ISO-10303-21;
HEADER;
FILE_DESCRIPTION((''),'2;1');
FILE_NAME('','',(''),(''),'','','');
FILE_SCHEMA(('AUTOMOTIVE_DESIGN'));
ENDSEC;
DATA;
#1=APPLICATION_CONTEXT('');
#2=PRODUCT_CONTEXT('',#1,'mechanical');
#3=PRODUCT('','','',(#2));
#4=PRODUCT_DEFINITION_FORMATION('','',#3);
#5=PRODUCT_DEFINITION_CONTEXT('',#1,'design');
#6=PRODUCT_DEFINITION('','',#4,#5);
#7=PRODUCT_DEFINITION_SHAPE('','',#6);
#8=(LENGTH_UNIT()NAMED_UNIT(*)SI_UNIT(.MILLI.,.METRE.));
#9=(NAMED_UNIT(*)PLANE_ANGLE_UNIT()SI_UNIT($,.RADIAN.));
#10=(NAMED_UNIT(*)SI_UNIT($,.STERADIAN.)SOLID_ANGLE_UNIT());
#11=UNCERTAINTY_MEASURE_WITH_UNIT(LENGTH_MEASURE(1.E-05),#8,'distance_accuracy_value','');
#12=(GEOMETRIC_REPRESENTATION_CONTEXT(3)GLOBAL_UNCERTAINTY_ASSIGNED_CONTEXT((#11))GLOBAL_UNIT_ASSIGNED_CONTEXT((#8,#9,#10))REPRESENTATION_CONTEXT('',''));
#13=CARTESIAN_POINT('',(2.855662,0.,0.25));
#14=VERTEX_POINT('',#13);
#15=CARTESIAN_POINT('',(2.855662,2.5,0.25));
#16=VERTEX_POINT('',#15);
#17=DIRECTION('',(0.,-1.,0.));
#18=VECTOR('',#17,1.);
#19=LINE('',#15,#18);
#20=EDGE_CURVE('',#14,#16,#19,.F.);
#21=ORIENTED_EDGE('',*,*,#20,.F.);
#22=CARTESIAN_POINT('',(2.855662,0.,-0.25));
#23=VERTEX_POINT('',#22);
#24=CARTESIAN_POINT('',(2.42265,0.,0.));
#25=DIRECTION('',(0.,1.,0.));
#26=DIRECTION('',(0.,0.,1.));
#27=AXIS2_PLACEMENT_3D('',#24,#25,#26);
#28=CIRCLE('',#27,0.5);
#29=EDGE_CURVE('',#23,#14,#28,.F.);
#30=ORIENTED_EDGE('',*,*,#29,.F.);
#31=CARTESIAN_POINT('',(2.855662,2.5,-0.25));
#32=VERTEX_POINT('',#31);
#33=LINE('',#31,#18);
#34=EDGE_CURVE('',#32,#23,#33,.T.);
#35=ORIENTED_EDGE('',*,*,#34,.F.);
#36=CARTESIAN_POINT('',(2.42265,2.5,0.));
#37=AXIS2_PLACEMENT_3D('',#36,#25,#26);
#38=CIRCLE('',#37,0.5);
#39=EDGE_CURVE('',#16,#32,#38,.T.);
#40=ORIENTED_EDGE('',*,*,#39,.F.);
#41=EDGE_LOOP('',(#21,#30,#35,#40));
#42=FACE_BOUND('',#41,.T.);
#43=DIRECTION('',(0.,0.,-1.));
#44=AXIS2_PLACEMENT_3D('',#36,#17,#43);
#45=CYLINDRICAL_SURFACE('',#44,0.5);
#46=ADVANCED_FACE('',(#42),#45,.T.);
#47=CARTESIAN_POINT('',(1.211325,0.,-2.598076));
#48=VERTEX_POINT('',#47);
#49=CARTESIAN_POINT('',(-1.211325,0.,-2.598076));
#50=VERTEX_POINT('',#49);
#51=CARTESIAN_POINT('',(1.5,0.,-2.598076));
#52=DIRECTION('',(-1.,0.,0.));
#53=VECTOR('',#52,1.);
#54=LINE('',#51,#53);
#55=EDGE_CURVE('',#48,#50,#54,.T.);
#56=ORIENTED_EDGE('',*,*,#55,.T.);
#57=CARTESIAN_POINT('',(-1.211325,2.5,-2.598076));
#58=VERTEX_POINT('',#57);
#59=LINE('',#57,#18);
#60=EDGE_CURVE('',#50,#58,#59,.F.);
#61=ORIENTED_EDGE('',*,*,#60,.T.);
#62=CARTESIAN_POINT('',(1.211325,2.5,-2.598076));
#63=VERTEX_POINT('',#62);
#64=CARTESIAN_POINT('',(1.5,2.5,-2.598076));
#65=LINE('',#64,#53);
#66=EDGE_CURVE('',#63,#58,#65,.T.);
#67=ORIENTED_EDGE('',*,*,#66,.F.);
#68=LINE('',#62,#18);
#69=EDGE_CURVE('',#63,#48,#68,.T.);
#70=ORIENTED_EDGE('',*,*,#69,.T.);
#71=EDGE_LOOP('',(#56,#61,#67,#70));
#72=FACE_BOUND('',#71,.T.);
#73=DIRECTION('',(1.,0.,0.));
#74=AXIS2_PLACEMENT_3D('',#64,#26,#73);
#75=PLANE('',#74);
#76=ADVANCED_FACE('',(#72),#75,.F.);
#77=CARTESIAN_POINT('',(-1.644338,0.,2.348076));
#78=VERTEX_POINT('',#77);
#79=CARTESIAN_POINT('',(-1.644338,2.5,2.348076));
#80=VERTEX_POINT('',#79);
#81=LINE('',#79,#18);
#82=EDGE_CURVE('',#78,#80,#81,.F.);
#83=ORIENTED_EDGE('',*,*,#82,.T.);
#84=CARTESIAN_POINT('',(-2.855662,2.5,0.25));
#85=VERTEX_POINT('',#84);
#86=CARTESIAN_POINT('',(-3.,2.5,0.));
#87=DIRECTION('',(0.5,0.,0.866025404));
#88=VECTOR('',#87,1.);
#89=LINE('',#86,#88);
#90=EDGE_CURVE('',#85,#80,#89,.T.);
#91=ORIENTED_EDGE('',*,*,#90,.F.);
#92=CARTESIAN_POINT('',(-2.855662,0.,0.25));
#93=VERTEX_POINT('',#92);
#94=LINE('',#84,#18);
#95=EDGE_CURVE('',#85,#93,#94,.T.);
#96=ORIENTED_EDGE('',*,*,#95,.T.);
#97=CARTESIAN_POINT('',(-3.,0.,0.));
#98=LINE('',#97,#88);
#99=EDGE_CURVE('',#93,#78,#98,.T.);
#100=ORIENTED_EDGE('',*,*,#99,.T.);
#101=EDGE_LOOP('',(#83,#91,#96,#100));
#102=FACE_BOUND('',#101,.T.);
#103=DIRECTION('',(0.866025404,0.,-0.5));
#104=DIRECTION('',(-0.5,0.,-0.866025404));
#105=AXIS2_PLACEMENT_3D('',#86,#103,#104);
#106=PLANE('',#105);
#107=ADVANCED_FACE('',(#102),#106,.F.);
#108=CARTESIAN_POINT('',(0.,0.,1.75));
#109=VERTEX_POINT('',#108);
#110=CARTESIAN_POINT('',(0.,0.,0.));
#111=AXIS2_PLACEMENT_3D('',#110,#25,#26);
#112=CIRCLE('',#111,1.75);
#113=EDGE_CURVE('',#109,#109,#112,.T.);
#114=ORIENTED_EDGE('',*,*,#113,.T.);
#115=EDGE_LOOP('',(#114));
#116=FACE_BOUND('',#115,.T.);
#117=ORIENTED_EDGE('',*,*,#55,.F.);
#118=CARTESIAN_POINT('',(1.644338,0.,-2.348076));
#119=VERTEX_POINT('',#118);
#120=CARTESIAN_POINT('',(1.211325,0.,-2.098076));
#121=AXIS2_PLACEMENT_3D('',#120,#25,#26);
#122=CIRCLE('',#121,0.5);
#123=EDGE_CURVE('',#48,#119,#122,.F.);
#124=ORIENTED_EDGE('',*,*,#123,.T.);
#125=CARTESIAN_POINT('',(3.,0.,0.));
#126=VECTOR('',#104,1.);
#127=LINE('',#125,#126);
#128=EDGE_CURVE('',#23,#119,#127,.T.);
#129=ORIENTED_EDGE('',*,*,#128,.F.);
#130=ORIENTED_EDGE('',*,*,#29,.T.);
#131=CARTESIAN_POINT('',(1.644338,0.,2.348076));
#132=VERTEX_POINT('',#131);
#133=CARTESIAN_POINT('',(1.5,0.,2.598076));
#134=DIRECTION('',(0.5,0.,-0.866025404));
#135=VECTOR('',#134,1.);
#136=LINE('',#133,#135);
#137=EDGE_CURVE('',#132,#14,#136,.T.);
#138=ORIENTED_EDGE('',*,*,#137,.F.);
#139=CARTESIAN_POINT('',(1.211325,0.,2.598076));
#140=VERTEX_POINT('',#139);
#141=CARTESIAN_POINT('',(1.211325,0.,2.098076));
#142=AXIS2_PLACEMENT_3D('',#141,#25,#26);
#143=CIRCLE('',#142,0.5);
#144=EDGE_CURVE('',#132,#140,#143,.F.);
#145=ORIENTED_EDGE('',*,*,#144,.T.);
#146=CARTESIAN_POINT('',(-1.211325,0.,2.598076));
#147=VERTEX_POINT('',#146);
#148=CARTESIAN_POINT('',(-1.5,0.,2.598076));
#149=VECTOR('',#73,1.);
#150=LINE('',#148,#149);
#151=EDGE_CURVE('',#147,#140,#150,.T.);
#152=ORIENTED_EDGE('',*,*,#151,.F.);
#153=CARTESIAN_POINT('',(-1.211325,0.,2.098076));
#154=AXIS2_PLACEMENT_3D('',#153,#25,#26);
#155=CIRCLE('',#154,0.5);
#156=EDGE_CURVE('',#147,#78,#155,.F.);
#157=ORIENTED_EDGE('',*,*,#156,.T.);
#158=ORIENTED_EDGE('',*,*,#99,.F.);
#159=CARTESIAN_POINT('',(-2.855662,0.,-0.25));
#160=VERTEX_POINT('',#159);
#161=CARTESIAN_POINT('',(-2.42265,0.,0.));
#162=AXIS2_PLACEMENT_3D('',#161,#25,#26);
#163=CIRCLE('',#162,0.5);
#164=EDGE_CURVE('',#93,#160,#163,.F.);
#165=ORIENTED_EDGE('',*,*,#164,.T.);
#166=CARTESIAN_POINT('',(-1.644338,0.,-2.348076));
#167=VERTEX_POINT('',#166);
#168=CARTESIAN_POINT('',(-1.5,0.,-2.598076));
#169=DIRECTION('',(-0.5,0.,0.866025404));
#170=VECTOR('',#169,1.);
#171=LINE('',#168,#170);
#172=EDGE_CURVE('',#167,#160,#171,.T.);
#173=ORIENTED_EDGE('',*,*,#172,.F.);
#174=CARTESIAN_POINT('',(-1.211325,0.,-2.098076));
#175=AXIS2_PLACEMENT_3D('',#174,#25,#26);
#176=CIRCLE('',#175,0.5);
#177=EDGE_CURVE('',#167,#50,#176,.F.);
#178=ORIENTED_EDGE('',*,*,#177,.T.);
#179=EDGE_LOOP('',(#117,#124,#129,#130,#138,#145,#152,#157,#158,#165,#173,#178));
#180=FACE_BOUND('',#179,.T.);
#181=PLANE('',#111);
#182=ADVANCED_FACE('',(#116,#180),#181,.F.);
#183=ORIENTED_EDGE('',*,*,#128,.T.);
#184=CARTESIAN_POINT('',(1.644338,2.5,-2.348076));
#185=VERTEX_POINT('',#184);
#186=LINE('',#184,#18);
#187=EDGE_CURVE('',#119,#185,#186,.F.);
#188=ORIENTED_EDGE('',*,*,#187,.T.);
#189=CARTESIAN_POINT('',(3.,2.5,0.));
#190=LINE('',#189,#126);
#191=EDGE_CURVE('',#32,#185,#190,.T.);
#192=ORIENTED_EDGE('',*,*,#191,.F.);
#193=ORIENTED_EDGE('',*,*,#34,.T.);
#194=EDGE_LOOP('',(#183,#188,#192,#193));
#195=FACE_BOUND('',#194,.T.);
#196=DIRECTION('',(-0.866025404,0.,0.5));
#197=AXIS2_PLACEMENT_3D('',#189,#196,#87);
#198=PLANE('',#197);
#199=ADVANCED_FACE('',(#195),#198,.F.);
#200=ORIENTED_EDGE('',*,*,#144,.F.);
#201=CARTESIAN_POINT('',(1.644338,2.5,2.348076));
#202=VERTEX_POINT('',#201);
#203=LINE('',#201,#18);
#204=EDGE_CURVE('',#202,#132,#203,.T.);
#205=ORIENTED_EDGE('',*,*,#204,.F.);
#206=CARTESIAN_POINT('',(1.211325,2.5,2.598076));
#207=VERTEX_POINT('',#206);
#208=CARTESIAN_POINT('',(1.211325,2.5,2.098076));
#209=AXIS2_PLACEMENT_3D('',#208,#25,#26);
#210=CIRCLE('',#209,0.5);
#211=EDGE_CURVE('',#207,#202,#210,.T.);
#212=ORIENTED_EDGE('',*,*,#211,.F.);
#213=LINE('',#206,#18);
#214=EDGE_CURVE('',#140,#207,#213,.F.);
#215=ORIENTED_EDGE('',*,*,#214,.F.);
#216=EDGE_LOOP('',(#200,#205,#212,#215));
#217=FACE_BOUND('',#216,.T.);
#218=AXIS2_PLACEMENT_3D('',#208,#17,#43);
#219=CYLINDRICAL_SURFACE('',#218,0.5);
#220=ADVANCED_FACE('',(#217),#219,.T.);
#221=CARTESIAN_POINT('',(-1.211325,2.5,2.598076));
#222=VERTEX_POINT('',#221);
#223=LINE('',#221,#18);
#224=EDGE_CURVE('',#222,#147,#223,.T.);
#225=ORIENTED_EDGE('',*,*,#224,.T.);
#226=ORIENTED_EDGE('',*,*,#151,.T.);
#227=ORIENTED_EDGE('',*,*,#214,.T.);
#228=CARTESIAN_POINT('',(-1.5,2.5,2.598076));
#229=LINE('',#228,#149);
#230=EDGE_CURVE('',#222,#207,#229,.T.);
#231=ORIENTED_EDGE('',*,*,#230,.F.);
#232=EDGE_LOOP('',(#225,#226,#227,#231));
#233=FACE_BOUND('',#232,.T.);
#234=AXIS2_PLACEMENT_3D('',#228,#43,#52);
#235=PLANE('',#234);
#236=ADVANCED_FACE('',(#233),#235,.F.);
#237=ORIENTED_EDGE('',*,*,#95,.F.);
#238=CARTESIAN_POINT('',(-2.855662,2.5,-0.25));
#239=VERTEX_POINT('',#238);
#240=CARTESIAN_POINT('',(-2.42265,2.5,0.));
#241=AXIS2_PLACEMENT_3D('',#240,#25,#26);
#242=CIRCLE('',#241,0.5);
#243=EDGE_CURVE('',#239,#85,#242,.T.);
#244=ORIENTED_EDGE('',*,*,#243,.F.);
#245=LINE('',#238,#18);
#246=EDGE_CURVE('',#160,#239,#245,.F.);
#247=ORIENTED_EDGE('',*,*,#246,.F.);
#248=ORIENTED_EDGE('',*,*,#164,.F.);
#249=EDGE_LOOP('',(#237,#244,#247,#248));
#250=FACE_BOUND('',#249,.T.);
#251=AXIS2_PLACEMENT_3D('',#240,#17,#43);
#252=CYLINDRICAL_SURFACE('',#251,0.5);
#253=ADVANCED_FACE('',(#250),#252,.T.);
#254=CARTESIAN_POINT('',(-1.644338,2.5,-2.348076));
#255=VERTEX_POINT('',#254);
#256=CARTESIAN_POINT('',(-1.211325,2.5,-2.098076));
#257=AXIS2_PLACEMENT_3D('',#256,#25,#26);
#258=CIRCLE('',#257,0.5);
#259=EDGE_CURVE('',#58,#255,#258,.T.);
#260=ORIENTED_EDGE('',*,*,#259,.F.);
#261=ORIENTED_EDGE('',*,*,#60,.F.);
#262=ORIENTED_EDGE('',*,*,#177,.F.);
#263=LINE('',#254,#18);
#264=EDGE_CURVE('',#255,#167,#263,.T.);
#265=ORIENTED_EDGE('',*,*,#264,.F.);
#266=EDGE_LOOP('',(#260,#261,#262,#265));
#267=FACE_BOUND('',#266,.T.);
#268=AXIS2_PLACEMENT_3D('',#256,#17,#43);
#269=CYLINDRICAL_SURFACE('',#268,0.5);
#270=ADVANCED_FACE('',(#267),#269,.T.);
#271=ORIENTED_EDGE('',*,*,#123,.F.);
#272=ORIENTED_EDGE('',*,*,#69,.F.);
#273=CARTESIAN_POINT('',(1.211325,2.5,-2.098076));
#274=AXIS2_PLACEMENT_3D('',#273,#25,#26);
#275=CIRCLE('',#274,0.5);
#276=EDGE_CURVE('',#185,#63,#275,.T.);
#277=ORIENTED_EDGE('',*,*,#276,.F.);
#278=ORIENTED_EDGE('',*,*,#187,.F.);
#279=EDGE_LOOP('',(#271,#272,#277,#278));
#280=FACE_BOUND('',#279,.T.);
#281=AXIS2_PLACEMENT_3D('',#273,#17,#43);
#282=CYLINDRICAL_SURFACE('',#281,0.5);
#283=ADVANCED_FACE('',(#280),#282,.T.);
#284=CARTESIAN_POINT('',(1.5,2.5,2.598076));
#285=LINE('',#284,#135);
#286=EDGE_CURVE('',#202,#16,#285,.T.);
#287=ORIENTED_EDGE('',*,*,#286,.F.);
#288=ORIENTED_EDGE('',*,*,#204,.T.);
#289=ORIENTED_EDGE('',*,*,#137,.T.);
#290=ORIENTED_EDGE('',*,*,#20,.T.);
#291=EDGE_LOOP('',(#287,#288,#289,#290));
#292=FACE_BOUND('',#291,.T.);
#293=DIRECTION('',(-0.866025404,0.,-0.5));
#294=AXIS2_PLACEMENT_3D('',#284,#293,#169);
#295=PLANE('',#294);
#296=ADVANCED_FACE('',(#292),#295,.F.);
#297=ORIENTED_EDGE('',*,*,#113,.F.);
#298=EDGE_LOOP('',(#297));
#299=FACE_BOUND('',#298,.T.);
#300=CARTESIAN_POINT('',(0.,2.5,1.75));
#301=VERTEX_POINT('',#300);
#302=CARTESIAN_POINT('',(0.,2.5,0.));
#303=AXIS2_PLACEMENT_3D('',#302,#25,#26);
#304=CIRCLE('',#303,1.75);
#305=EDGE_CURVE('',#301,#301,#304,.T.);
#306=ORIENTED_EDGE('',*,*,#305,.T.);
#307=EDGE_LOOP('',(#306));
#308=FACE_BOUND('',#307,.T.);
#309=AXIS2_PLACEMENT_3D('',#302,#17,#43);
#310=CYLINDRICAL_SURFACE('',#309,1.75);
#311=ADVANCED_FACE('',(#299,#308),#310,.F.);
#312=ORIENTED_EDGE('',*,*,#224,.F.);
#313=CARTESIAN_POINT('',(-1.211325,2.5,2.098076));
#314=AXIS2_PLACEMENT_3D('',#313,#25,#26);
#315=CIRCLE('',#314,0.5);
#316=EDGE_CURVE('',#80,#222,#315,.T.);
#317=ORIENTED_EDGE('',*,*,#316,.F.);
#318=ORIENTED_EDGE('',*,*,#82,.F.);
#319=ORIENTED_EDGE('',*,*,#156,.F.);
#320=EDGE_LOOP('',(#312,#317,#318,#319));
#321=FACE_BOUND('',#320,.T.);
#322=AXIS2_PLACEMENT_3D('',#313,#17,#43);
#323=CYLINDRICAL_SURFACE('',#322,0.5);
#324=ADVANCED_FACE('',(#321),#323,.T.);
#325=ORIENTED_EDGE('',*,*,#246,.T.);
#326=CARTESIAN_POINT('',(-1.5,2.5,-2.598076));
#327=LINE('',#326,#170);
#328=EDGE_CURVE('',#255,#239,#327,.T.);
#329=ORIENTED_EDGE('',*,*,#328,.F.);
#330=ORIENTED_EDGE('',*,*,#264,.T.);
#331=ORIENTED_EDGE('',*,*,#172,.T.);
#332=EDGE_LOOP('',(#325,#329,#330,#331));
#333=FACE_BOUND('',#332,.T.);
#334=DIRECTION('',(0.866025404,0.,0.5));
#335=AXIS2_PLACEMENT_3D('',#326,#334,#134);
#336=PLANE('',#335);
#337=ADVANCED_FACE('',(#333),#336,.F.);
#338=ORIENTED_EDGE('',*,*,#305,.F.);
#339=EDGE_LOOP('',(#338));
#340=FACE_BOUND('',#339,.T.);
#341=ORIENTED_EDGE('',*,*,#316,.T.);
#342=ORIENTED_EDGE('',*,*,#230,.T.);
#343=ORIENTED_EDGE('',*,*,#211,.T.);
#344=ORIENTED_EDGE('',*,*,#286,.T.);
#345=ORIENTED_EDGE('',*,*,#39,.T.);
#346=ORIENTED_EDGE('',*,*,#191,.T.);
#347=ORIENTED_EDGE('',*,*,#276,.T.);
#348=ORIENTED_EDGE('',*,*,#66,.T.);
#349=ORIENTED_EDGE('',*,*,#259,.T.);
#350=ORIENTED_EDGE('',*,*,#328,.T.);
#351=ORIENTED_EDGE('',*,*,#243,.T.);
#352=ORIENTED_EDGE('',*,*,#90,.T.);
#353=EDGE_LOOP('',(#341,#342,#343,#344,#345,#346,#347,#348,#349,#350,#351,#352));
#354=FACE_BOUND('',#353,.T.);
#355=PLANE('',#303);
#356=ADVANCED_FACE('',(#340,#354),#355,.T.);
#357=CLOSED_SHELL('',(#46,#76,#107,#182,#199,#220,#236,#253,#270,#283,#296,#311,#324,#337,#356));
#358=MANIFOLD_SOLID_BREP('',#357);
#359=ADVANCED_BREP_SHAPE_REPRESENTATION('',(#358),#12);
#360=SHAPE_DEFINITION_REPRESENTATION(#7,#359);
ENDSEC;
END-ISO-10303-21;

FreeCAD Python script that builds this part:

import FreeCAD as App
import Part
import Sketcher
from FreeCAD import Vector
Q = App.Units.Quantity


def edges_at(feature, points):
    """Names of the edges that pass closest to the given points."""
    edges = feature.Shape.Edges
    near = lambda p: min(range(len(edges)), key=lambda i: edges[i].distToShape(Part.Vertex(*p))[0])
    return sorted({f"Edge{near(p) + 1}" for p in points})


def add_polygon(sketch, points):
    """Adds a closed chain of lines whose ends are joined by coincident constraints."""
    first, n = sketch.GeometryCount, len(points)
    for a, b in zip(points, points[1:] + points[:1]):
        sketch.addGeometry(Part.LineSegment(App.Vector(*a, 0), App.Vector(*b, 0)), False)
    for i in range(n):
        sketch.addConstraint(Sketcher.Constraint("Coincident", first + i, 2, first + (i + 1) % n, 1))

doc = App.newDocument("Part")
body = doc.addObject("PartDesign::Body", "Body")

# Sketch on XZ plane
sketch1 = body.newObject("Sketcher::SketchObject", "Sketch")
sketch1.AttachmentSupport = (doc.getObject("XZ_Plane"), [""])
sketch1.MapMode = "FlatFace"
add_polygon(sketch1, [(-1.5, -2.6), (-3, 0), (-1.5, 2.6), (1.5, 2.6), (3, 0), (1.5, -2.6)])  # lines 0-5
sketch1.addGeometry(Part.Circle(Vector(0, 0, 0), Vector(0, 0, 1), 1.8), False)  # 6
sketch1.addConstraint([
    Sketcher.Constraint("Horizontal", 2),
    Sketcher.Constraint("Horizontal", 5),
    Sketcher.Constraint("Coincident", 6, 3, -1, 1),
    Sketcher.Constraint("Symmetric", 0, 2, 3, 2, -1, 1),
    Sketcher.Constraint("Symmetric", 1, 2, 4, 2, -1, 1),
    Sketcher.Constraint("PointOnObject", 0, 2, -1),
    Sketcher.Constraint("Parallel", 0, 3),
    Sketcher.Constraint("Vertical", 2, 2, 4, 2),
    Sketcher.Constraint("Diameter", 6, 3.5),
    Sketcher.Constraint("DistanceX", 2, 1, 2, 2, 3.0),
    Sketcher.Constraint("Angle", 0, Q("120 deg")),
    Sketcher.Constraint("Distance", 0, 3.0),
])
pad1 = body.newObject("PartDesign::Pad", "Pad")
pad1.Profile = sketch1
pad1.Length = 2.5
pad1.Reversed = True
doc.recompute()

fillet = body.newObject("PartDesign::Fillet", "Fillet")
fillet.Base = (pad1, edges_at(pad1, [
    (1.5, 1.25, -2.598),
    (3, 1.25, 0),
    (1.5, 1.25, 2.598),
    (-1.5, 1.25, 2.598),
    (-3, 1.25, 0),
    (-1.5, 1.25, -2.598),
]))
fillet.Radius = 0.5

doc.recompute()
